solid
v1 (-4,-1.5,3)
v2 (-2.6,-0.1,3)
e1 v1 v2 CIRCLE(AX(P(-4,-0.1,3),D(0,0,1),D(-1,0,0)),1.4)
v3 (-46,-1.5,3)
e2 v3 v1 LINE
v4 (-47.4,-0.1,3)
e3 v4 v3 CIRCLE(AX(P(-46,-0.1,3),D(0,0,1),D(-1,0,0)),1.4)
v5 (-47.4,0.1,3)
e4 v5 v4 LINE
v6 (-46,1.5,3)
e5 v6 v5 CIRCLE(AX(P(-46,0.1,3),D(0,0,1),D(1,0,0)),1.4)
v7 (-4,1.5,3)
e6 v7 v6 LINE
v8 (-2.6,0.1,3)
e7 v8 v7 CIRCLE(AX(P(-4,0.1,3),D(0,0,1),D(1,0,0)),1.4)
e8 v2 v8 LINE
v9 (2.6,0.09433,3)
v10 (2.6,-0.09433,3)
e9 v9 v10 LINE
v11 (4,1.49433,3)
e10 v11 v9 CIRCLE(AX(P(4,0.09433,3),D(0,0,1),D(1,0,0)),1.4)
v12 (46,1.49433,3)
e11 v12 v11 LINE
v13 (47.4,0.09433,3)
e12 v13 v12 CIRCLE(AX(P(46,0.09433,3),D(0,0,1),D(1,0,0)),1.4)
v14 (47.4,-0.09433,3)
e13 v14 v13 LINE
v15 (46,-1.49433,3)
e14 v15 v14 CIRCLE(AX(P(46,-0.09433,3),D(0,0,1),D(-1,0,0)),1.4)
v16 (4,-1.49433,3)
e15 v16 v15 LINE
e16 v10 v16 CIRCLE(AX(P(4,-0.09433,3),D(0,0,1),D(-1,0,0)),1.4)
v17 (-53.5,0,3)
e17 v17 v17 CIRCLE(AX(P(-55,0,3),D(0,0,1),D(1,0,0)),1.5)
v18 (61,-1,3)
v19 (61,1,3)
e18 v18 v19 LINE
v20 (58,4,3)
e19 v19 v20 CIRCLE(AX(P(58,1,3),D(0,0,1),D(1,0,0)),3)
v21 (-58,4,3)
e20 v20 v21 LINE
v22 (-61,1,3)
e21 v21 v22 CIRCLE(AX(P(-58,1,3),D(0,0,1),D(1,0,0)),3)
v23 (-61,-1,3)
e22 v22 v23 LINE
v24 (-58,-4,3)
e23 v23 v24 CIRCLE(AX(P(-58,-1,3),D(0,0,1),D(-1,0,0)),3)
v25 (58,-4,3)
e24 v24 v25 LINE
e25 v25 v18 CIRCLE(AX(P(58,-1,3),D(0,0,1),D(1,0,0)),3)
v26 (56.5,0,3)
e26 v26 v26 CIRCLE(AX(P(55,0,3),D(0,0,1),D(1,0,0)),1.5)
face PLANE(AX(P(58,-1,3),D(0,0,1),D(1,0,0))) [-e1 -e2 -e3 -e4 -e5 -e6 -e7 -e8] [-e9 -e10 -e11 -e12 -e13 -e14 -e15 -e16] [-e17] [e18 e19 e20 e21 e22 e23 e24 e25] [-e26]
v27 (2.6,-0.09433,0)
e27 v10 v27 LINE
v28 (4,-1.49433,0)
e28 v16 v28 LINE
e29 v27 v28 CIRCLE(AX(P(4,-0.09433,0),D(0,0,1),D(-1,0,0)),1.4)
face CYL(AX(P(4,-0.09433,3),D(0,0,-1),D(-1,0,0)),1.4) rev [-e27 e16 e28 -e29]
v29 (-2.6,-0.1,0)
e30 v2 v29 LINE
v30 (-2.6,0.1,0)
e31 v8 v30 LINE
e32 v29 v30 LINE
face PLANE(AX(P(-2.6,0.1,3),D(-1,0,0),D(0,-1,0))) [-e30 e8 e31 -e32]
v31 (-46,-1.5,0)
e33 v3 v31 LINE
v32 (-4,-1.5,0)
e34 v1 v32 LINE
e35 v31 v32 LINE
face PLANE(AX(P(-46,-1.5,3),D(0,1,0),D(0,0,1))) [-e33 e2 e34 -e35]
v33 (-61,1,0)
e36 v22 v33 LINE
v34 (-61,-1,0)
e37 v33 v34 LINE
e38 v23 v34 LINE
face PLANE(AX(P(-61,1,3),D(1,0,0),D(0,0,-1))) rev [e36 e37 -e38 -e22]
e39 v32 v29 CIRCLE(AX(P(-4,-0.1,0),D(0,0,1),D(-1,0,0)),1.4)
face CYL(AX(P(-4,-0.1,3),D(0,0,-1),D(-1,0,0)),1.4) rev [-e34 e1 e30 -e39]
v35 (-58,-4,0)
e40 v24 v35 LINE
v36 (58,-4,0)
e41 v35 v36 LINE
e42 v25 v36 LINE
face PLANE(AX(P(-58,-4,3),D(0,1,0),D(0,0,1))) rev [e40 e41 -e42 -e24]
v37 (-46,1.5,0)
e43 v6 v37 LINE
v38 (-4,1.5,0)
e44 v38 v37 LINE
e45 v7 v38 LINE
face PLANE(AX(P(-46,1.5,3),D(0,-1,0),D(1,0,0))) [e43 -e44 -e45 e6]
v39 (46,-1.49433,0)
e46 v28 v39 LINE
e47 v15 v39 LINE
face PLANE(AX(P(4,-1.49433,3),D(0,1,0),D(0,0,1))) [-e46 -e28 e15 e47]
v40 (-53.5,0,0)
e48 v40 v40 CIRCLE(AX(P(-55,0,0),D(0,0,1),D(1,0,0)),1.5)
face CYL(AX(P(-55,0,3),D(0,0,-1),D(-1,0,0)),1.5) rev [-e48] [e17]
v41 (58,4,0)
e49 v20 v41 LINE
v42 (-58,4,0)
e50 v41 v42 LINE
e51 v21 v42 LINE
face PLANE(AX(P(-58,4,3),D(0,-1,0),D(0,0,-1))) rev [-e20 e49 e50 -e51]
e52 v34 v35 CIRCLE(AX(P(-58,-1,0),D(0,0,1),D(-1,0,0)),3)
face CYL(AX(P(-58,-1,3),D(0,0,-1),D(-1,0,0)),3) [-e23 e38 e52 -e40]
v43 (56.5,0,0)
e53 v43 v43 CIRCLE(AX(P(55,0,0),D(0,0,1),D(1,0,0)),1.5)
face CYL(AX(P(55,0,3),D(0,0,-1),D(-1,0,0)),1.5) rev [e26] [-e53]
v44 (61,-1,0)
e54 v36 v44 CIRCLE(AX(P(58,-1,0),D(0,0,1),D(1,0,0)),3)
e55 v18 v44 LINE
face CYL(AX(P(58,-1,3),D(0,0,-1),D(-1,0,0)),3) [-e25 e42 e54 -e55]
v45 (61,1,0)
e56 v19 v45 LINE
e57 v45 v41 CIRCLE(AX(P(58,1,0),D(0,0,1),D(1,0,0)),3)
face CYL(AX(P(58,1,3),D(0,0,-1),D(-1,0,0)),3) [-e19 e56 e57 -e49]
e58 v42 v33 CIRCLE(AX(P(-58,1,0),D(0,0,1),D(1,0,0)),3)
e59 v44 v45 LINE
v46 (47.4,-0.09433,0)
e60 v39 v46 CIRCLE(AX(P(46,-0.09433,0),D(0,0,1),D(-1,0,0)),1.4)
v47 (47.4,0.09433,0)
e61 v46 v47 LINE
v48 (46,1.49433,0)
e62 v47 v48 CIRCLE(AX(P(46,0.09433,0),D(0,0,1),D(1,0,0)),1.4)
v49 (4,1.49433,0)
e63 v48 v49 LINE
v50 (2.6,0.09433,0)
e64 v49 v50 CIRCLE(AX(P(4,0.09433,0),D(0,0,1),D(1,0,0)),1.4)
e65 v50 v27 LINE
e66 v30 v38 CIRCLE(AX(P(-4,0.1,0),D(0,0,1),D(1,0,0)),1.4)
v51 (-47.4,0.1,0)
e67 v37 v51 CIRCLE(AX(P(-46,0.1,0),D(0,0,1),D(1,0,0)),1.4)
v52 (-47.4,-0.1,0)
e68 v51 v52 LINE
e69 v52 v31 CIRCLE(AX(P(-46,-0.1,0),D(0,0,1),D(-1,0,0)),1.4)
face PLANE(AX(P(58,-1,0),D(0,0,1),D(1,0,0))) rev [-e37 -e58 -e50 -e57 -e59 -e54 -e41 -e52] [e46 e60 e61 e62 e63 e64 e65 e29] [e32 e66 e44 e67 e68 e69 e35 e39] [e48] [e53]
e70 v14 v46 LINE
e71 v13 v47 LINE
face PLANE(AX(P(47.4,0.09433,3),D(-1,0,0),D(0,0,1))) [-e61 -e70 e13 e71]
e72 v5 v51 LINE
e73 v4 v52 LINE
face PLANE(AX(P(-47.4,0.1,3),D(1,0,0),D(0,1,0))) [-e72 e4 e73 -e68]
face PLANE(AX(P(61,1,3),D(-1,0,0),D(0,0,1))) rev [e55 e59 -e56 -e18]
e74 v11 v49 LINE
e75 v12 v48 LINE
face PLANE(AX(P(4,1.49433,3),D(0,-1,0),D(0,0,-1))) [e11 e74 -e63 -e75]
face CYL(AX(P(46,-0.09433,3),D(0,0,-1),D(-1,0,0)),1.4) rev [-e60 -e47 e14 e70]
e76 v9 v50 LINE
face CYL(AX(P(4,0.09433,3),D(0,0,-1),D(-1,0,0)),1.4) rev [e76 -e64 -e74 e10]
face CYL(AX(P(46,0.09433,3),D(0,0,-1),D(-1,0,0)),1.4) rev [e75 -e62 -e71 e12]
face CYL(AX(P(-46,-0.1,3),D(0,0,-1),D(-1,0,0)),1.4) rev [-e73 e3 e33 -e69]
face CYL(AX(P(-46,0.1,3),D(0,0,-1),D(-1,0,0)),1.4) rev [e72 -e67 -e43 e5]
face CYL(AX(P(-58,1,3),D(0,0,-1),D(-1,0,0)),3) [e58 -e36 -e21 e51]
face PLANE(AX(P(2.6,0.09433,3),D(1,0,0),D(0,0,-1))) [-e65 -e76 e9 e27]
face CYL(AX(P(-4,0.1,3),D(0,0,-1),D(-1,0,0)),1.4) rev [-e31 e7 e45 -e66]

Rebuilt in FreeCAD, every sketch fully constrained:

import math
import FreeCAD as App
import Part
import Sketcher
from FreeCAD import Vector
Q = App.Units.Quantity

doc = App.newDocument("Part")
params = doc.addObject("Spreadsheet::Sheet", "Params")
for row, (alias, value) in enumerate([
    ("sketch1_diameter", "3 mm"),
    ("sketch1_radius", "3 mm"),
    ("sketch1_radius2", "1.4 mm"),
    ("sketch1_width", "116 mm"),
    ("sketch1_width2", "42 mm"),
    ("pad1_length", "3 mm"),
], start=1):
    params.set(f"A{row}", alias)
    params.set(f"B{row}", "=" + value)
    params.setAlias(f"B{row}", alias)

body = doc.addObject("PartDesign::Body", "Body")

sketch1 = body.newObject("Sketcher::SketchObject", "Sketch")
sketch1.AttachmentSupport = (doc.getObject("XY_Plane"), [""])
sketch1.MapMode = "FlatFace"
sketch1.addGeometry([
    Part.LineSegment(Vector(58, 4, 0), Vector(-58, 4, 0)),
    Part.ArcOfCircle(Part.Circle(Vector(-58, 1, 0), Vector(0, 0, 1), 3), math.radians(90), math.radians(180)),
    Part.LineSegment(Vector(-61, 1, 0), Vector(-61, -1, 0)),
    Part.ArcOfCircle(Part.Circle(Vector(-58, -1, 0), Vector(0, 0, 1), 3), math.radians(180), math.radians(270)),
    Part.LineSegment(Vector(-58, -4, 0), Vector(58, -4, 0)),
    Part.ArcOfCircle(Part.Circle(Vector(58, -1, 0), Vector(0, 0, 1), 3), math.radians(-90), math.radians(0)),
    Part.LineSegment(Vector(61, -1, 0), Vector(61, 1, 0)),
    Part.ArcOfCircle(Part.Circle(Vector(58, 1, 0), Vector(0, 0, 1), 3), math.radians(0), math.radians(90)),
    Part.Circle(Vector(55, 0, 0), Vector(0, 0, 1), 1.5),
    Part.LineSegment(Vector(4, 1.49, 0), Vector(46, 1.49, 0)),
    Part.ArcOfCircle(Part.Circle(Vector(46, 0.09, 0), Vector(0, 0, 1), 1.4), math.radians(0), math.radians(90)),
    Part.LineSegment(Vector(47.4, 0.09, 0), Vector(47.4, -0.09, 0)),
    Part.ArcOfCircle(Part.Circle(Vector(46, -0.09, 0), Vector(0, 0, 1), 1.4), math.radians(-90), math.radians(0)),
    Part.LineSegment(Vector(46, -1.49, 0), Vector(4, -1.49, 0)),
    Part.ArcOfCircle(Part.Circle(Vector(4, -0.09, 0), Vector(0, 0, 1), 1.4), math.radians(180), math.radians(270)),
    Part.LineSegment(Vector(2.6, -0.09, 0), Vector(2.6, 0.09, 0)),
    Part.ArcOfCircle(Part.Circle(Vector(4, 0.09, 0), Vector(0, 0, 1), 1.4), math.radians(90), math.radians(180)),
    Part.LineSegment(Vector(-46, 1.5, 0), Vector(-4, 1.5, 0)),
    Part.ArcOfCircle(Part.Circle(Vector(-4, 0.1, 0), Vector(0, 0, 1), 1.4), math.radians(0), math.radians(90)),
    Part.LineSegment(Vector(-2.6, 0.1, 0), Vector(-2.6, -0.1, 0)),
    Part.ArcOfCircle(Part.Circle(Vector(-4, -0.1, 0), Vector(0, 0, 1), 1.4), math.radians(-90), math.radians(0)),
    Part.LineSegment(Vector(-4, -1.5, 0), Vector(-46, -1.5, 0)),
    Part.ArcOfCircle(Part.Circle(Vector(-46, -0.1, 0), Vector(0, 0, 1), 1.4), math.radians(180), math.radians(270)),
    Part.LineSegment(Vector(-47.4, -0.1, 0), Vector(-47.4, 0.1, 0)),
    Part.ArcOfCircle(Part.Circle(Vector(-46, 0.1, 0), Vector(0, 0, 1), 1.4), math.radians(90), math.radians(180)),
    Part.Circle(Vector(-55, 0, 0), Vector(0, 0, 1), 1.5),
], False)
sketch1.addConstraint([
    Sketcher.Constraint("Tangent", 0, 2, 1, 1),
    Sketcher.Constraint("Tangent", 1, 2, 2, 1),
    Sketcher.Constraint("Tangent", 2, 2, 3, 1),
    Sketcher.Constraint("Tangent", 3, 2, 4, 1),
    Sketcher.Constraint("Tangent", 4, 2, 5, 1),
    Sketcher.Constraint("Tangent", 5, 2, 6, 1),
    Sketcher.Constraint("Tangent", 6, 2, 7, 1),
    Sketcher.Constraint("Tangent", 7, 2, 0, 1),
    Sketcher.Constraint("Tangent", 9, 2, 10, 2),
    Sketcher.Constraint("Tangent", 10, 1, 11, 1),
    Sketcher.Constraint("Tangent", 11, 2, 12, 2),
    Sketcher.Constraint("Tangent", 12, 1, 13, 1),
    Sketcher.Constraint("Tangent", 13, 2, 14, 2),
    Sketcher.Constraint("Tangent", 14, 1, 15, 1),
    Sketcher.Constraint("Tangent", 15, 2, 16, 2),
    Sketcher.Constraint("Tangent", 16, 1, 9, 1),
    Sketcher.Constraint("Tangent", 17, 2, 18, 2),
    Sketcher.Constraint("Tangent", 18, 1, 19, 1),
    Sketcher.Constraint("Tangent", 19, 2, 20, 2),
    Sketcher.Constraint("Tangent", 20, 1, 21, 1),
    Sketcher.Constraint("Tangent", 21, 2, 22, 2),
    Sketcher.Constraint("Tangent", 22, 1, 23, 1),
    Sketcher.Constraint("Tangent", 23, 2, 24, 2),
    Sketcher.Constraint("Tangent", 24, 1, 17, 1),
    Sketcher.Constraint("Horizontal", 0),
    Sketcher.Constraint("Vertical", 2),
    Sketcher.Constraint("Horizontal", 4),
    Sketcher.Constraint("Vertical", 6),
    Sketcher.Constraint("Horizontal", 9),
    Sketcher.Constraint("Vertical", 11),
    Sketcher.Constraint("Horizontal", 13),
    Sketcher.Constraint("Vertical", 15),
    Sketcher.Constraint("Horizontal", 17),
    Sketcher.Constraint("Vertical", 19),
    Sketcher.Constraint("Horizontal", 21),
    Sketcher.Constraint("Vertical", 23),
    Sketcher.Constraint("Equal", 1, 3),
    Sketcher.Constraint("Equal", 3, 5),
    Sketcher.Constraint("Equal", 5, 7),
    Sketcher.Constraint("Equal", 10, 12),
    Sketcher.Constraint("Equal", 12, 14),
    Sketcher.Constraint("Equal", 14, 16),
    Sketcher.Constraint("Equal", 16, 18),
    Sketcher.Constraint("Equal", 18, 20),
    Sketcher.Constraint("Equal", 20, 22),
    Sketcher.Constraint("Equal", 22, 24),
    Sketcher.Constraint("Equal", 8, 25),
    Sketcher.Constraint("Symmetric", 1, 3, 5, 3, -1, 1),
    Sketcher.Constraint("Symmetric", 8, 3, 25, 3, -1, 1),
    Sketcher.Constraint("PointOnObject", 8, 3, -1),
    Sketcher.Constraint("Equal", 13, 17),
    Sketcher.Constraint("Diameter", 8, Q("3 mm")),
    Sketcher.Constraint("Radius", 1, Q("3 mm")),
    Sketcher.Constraint("Radius", 10, Q("1.4 mm")),
    Sketcher.Constraint("DistanceX", 0, 2, 0, 1, Q("116 mm")),
    Sketcher.Constraint("DistanceX", 9, 1, 9, 2, Q("42 mm")),
    Sketcher.Constraint("DistanceY", 2, 2, 2, 1, Q("2 mm")),
    Sketcher.Constraint("DistanceY", 19, 2, 19, 1, Q("0.2 mm")),
    Sketcher.Constraint("DistanceX", -1, 1, 8, 3, Q("55 mm")),
    Sketcher.Constraint("DistanceX", -1, 1, 10, 3, Q("46 mm")),
    Sketcher.Constraint("DistanceX", 18, 3, -1, 1, Q("4 mm")),
    Sketcher.Constraint("DistanceY", -1, 1, 18, 3, Q("0.1 mm")),
    Sketcher.Constraint("DistanceY", 11, 2, 11, 1, Q("0.18866 mm")),
    Sketcher.Constraint("DistanceY", -1, 1, 10, 3, Q("0.09433 mm")),
])
sketch1.setExpression("Constraints[51]", "Params.sketch1_diameter")
sketch1.setExpression("Constraints[52]", "Params.sketch1_radius")
sketch1.setExpression("Constraints[53]", "Params.sketch1_radius2")
sketch1.setExpression("Constraints[54]", "Params.sketch1_width")
sketch1.setExpression("Constraints[55]", "Params.sketch1_width2")
pad1 = body.newObject("PartDesign::Pad", "Pad")
pad1.Profile = sketch1
pad1.setExpression("Length", "Params.pad1_length")

doc.recompute()
